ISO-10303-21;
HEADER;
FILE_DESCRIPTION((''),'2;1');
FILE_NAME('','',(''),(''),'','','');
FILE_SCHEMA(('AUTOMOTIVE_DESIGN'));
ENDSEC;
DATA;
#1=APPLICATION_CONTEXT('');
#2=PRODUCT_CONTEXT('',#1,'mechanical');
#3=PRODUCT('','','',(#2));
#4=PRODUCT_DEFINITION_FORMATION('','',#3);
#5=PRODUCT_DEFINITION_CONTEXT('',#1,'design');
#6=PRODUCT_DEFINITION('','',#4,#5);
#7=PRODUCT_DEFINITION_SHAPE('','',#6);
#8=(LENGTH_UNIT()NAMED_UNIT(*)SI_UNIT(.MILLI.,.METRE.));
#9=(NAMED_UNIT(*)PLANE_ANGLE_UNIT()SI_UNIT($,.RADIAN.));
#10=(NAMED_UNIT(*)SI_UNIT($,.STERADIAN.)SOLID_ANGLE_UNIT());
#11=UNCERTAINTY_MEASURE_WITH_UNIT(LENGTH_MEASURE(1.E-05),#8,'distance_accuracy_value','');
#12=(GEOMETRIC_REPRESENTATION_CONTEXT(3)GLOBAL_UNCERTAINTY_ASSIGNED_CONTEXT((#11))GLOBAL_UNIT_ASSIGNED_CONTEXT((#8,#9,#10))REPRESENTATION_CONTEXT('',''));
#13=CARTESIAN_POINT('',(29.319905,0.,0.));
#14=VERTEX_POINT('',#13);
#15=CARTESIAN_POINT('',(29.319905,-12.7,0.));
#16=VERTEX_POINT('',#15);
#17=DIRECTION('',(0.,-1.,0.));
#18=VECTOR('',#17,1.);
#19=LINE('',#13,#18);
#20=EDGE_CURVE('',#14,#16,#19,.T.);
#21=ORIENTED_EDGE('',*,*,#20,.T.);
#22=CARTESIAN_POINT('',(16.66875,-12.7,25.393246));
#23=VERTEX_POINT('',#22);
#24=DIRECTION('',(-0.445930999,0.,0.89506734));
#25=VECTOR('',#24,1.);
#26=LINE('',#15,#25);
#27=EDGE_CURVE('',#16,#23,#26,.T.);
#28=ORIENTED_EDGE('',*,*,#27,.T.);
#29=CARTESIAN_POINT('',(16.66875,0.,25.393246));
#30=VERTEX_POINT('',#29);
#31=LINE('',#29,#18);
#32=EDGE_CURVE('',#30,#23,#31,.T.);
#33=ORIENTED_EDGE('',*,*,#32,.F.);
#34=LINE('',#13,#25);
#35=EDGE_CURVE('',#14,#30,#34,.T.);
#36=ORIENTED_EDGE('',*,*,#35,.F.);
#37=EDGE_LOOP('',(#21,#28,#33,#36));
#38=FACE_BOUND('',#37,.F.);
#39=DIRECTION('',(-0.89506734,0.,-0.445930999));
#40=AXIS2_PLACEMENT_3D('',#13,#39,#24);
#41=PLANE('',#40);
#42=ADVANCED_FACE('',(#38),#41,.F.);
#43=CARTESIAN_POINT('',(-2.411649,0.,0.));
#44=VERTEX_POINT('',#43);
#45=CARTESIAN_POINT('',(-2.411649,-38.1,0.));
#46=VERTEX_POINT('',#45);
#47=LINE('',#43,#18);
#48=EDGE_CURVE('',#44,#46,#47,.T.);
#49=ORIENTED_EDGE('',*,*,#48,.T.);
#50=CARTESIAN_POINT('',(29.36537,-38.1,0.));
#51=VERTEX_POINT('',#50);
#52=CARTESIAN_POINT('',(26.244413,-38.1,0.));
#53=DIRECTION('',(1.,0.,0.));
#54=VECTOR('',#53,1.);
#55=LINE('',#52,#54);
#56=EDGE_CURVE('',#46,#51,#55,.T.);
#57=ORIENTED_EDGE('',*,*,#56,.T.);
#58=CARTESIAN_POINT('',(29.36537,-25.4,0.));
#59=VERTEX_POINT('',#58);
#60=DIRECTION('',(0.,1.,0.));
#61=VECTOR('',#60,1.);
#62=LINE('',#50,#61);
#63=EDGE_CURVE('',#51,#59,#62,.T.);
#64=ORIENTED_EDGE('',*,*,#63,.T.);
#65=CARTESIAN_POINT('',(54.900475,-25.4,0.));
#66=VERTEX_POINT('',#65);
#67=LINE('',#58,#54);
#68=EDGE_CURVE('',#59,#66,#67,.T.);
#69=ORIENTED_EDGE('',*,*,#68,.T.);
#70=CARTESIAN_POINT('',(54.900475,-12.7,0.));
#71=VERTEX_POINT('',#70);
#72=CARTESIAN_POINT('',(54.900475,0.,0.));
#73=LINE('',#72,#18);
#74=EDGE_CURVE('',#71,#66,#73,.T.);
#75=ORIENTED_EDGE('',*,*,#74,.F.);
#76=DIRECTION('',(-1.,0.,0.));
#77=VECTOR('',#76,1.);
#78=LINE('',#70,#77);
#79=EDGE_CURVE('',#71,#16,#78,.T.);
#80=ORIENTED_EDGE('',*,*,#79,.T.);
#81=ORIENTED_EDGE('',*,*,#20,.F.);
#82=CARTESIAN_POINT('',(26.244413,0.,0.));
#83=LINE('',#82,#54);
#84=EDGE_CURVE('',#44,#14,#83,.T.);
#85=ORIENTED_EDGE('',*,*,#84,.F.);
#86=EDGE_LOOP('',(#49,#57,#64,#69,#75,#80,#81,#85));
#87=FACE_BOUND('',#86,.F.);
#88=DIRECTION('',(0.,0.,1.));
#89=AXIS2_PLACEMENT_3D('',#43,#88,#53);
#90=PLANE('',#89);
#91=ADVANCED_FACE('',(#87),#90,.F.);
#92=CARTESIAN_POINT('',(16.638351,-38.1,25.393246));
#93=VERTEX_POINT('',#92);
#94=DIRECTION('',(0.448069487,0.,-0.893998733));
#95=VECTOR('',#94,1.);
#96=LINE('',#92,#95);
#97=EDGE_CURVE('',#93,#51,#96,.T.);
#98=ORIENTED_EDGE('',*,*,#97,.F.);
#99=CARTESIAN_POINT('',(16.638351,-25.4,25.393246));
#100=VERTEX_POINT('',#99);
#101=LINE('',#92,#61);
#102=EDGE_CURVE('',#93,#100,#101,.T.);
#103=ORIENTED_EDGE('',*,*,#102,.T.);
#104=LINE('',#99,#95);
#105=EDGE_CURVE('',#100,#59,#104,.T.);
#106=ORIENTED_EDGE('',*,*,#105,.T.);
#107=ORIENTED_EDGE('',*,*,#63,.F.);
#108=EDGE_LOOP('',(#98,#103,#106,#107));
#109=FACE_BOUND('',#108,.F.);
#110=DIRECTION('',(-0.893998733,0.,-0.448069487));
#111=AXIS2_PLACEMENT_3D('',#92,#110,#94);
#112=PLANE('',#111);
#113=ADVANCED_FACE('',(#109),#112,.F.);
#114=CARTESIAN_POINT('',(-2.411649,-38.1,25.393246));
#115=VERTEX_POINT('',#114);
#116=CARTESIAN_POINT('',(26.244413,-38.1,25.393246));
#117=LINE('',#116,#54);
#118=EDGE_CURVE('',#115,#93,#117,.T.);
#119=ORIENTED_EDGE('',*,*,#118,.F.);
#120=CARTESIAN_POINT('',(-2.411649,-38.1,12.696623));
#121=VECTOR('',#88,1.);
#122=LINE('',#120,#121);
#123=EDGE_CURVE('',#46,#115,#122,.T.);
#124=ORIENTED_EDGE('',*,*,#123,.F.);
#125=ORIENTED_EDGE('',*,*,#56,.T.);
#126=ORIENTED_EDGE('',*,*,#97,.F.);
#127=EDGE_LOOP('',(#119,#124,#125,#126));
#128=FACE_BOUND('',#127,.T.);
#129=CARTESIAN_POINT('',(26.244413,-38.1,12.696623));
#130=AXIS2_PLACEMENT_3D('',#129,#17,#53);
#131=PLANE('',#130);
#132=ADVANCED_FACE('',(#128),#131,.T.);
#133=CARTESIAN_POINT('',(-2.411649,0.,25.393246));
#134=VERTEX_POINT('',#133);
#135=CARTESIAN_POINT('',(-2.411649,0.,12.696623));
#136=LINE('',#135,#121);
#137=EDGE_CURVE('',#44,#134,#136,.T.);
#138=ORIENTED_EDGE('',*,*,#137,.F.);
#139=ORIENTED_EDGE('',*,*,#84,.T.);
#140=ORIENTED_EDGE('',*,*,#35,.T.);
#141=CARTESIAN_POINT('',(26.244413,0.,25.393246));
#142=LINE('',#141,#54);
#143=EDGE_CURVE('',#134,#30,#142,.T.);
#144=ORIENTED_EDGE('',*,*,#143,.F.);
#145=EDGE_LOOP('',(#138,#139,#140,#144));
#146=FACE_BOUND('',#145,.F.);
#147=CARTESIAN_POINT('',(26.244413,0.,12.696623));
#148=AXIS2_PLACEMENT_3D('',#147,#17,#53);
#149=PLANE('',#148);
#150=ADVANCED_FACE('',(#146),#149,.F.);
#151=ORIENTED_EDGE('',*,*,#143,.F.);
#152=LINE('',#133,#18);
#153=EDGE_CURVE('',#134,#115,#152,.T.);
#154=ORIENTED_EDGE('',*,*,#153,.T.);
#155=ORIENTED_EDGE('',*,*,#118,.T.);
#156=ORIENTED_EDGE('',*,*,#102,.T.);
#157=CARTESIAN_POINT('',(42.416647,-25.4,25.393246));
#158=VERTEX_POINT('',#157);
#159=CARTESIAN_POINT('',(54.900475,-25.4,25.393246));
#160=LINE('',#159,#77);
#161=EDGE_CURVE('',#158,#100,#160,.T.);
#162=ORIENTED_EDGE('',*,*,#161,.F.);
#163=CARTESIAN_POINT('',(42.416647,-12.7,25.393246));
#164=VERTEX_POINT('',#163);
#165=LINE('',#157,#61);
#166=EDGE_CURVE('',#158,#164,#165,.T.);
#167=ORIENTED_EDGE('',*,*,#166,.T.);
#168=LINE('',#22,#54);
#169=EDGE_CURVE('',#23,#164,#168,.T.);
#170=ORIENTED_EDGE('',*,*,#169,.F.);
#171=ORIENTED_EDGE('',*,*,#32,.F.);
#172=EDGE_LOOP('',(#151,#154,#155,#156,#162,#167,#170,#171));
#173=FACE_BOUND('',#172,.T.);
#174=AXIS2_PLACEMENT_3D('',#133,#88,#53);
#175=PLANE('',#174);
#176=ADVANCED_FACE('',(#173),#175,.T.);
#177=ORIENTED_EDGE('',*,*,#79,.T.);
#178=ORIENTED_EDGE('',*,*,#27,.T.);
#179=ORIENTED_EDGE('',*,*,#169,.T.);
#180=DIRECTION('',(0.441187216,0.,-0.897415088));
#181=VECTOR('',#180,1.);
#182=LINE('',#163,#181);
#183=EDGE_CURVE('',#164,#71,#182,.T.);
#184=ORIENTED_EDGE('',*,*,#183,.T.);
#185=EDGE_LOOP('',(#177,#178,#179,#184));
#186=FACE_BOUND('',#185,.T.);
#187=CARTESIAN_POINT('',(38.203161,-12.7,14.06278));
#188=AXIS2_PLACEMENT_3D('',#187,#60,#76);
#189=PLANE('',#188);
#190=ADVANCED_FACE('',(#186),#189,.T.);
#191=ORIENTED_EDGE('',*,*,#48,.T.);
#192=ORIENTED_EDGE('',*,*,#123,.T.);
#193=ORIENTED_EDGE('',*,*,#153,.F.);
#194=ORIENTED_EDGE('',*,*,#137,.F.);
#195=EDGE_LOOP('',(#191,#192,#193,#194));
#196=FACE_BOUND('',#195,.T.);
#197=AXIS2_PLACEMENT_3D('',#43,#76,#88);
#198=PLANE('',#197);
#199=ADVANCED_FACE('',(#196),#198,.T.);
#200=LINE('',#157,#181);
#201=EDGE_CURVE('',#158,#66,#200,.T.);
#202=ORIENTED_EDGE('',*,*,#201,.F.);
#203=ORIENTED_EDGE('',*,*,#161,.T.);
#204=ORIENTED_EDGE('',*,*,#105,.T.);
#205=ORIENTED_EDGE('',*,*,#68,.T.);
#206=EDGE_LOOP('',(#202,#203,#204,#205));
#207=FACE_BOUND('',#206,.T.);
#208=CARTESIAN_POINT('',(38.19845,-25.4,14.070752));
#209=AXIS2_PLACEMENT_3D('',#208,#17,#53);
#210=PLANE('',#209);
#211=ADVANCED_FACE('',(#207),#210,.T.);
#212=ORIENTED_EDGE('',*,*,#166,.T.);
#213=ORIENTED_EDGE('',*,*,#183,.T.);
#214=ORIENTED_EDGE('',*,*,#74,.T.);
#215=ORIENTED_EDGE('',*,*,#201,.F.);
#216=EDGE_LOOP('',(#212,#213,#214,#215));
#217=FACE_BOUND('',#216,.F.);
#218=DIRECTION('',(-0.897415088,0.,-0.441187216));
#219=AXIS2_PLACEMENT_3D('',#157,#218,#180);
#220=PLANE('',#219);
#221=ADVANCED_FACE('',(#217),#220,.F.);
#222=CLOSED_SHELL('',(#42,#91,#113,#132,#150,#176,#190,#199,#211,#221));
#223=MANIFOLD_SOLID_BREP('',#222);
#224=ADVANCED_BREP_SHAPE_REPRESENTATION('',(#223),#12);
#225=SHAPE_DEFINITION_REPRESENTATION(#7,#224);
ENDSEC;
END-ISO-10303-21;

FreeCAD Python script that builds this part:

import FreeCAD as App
import Part
import Sketcher

V = App.Vector
Q = App.Units.Quantity

doc = App.newDocument("Part")
body = doc.addObject("PartDesign::Body", "Body")

# Sketch on XZ plane
sketch1 = body.newObject("Sketcher::SketchObject", "Sketch")
sketch1.AttachmentSupport = (doc.getObject("XZ_Plane"), [""])
sketch1.MapMode = "FlatFace"
sketch1.addGeometry([
    Part.LineSegment(V(-2, 25, 0), V(-2, 0, 0)),
    Part.LineSegment(V(-2, 0, 0), V(55, 0, 0)),
    Part.LineSegment(V(55, 0, 0), V(55, 25, 0)),
    Part.LineSegment(V(55, 25, 0), V(-2, 25, 0)),
], False)
sketch1.addConstraint([
    Sketcher.Constraint("Coincident", 0, 2, 1, 1),
    Sketcher.Constraint("Coincident", 1, 2, 2, 1),
    Sketcher.Constraint("Coincident", 2, 2, 3, 1),
    Sketcher.Constraint("Coincident", 3, 2, 0, 1),
    Sketcher.Constraint("Vertical", 0),
    Sketcher.Constraint("Horizontal", 1),
    Sketcher.Constraint("Vertical", 2),
    Sketcher.Constraint("Horizontal", 3),
    Sketcher.Constraint("PointOnObject", 0, 2, -1),
    Sketcher.Constraint("DistanceX", 1, 1, 1, 2, Q("57.312123 mm")),
    Sketcher.Constraint("DistanceY", 0, 2, 0, 1, Q("25.393246 mm")),
    Sketcher.Constraint("DistanceX", 0, 2, -1, 1, Q("2.411649 mm")),
])
pad1 = body.newObject("PartDesign::Pad", "Pad")
pad1.Profile = sketch1
pad1.Length = Q("1.5 in")

# Sketch on XZ plane
sketch2 = body.newObject("Sketcher::SketchObject", "Sketch001")
sketch2.AttachmentSupport = (doc.getObject("XZ_Plane"), [""])
sketch2.MapMode = "FlatFace"
sketch2.AttachmentOffset = App.Placement(V(0, 0, 1.5 * 25.4), App.Rotation())
sketch2.addGeometry([
    Part.LineSegment(V(55, 25, 0), V(17, 25, 0)),
    Part.LineSegment(V(17, 25, 0), V(29, 0, 0)),
    Part.LineSegment(V(29, 0, 0), V(55, 0, 0)),
    Part.LineSegment(V(55, 0, 0), V(55, 25, 0)),
], False)
sketch2.addConstraint([
    Sketcher.Constraint("Coincident", 0, 2, 1, 1),
    Sketcher.Constraint("Coincident", 1, 2, 2, 1),
    Sketcher.Constraint("Coincident", 2, 2, 3, 1),
    Sketcher.Constraint("Coincident", 3, 2, 0, 1),
    Sketcher.Constraint("Horizontal", 0),
    Sketcher.Constraint("Horizontal", 2),
    Sketcher.Constraint("Vertical", 3),
    Sketcher.Constraint("PointOnObject", 1, 2, -1),
    Sketcher.Constraint("Distance", 1, Q("28.404118 mm")),
    Sketcher.Constraint("DistanceX", 0, 2, 0, 1, Q("38.262123 mm")),
    Sketcher.Constraint("DistanceX", 2, 1, 2, 2, Q("25.535105 mm")),
    Sketcher.Constraint("DistanceX", -1, 1, 0, 2, Q("16.638351 mm")),
])
pocket1 = body.newObject("PartDesign::Pocket", "Pocket")
pocket1.Profile = sketch2
pocket1.Length = Q("0.5 in")

# Sketch on XZ plane
sketch3 = body.newObject("Sketcher::SketchObject", "Sketch002")
sketch3.AttachmentSupport = (doc.getObject("XZ_Plane"), [""])
sketch3.MapMode = "FlatFace"
sketch3.AttachmentOffset = App.Placement(V(0, 0, 1 * 25.4), App.Rotation())
sketch3.addGeometry([
    Part.LineSegment(V(55, 0, 0), V(55, 25, 0)),
    Part.LineSegment(V(55, 25, 0), V(42, 25, 0)),
    Part.LineSegment(V(42, 25, 0), V(55, 0, 0)),
], False)
sketch3.addConstraint([
    Sketcher.Constraint("Coincident", 0, 2, 1, 1),
    Sketcher.Constraint("Coincident", 1, 2, 2, 1),
    Sketcher.Constraint("Coincident", 2, 2, 0, 1),
    Sketcher.Constraint("Vertical", 0),
    Sketcher.Constraint("Horizontal", 1),
    Sketcher.Constraint("PointOnObject", 2, 2, -1),
    Sketcher.Constraint("DistanceX", 1, 2, 1, 1, Q("12.483828 mm")),
    Sketcher.Constraint("DistanceY", 0, 1, 0, 2, Q("25.393246 mm")),
    Sketcher.Constraint("DistanceX", -1, 1, 0, 2, Q("54.900475 mm")),
])
pocket2 = body.newObject("PartDesign::Pocket", "Pocket001")
pocket2.Profile = sketch3
pocket2.Length = Q("0.5 in")

# Sketch on XZ plane
sketch4 = body.newObject("Sketcher::SketchObject", "Sketch003")
sketch4.AttachmentSupport = (doc.getObject("XZ_Plane"), [""])
sketch4.MapMode = "FlatFace"
sketch4.addGeometry([
    Part.LineSegment(V(29, 0, 0), V(17, 25, 0)),
    Part.LineSegment(V(17, 25, 0), V(55, 25, 0)),
    Part.LineSegment(V(55, 25, 0), V(55, 0, 0)),
    Part.LineSegment(V(55, 0, 0), V(29, 0, 0)),
], False)
sketch4.addConstraint([
    Sketcher.Constraint("Coincident", 0, 2, 1, 1),
    Sketcher.Constraint("Coincident", 1, 2, 2, 1),
    Sketcher.Constraint("Coincident", 2, 2, 3, 1),
    Sketcher.Constraint("Coincident", 3, 2, 0, 1),
    Sketcher.Constraint("Horizontal", 1),
    Sketcher.Constraint("Vertical", 2),
    Sketcher.Constraint("Horizontal", 3),
    Sketcher.Constraint("PointOnObject", 2, 2, -1),
    Sketcher.Constraint("DistanceX", -1, 1, 0, 2, Q("0.65625 in")),
    Sketcher.Constraint("DistanceX", 3, 2, 3, 1, Q("25.58057 mm")),
    Sketcher.Constraint("DistanceX", 1, 1, 1, 2, Q("38.231725 mm")),
    Sketcher.Constraint("DistanceY", 2, 2, 2, 1, Q("25.393246 mm")),
])
pocket3 = body.newObject("PartDesign::Pocket", "Pocket002")
pocket3.Profile = sketch4
pocket3.Length = Q("0.5 in")
pocket3.Reversed = True

doc.recompute()
